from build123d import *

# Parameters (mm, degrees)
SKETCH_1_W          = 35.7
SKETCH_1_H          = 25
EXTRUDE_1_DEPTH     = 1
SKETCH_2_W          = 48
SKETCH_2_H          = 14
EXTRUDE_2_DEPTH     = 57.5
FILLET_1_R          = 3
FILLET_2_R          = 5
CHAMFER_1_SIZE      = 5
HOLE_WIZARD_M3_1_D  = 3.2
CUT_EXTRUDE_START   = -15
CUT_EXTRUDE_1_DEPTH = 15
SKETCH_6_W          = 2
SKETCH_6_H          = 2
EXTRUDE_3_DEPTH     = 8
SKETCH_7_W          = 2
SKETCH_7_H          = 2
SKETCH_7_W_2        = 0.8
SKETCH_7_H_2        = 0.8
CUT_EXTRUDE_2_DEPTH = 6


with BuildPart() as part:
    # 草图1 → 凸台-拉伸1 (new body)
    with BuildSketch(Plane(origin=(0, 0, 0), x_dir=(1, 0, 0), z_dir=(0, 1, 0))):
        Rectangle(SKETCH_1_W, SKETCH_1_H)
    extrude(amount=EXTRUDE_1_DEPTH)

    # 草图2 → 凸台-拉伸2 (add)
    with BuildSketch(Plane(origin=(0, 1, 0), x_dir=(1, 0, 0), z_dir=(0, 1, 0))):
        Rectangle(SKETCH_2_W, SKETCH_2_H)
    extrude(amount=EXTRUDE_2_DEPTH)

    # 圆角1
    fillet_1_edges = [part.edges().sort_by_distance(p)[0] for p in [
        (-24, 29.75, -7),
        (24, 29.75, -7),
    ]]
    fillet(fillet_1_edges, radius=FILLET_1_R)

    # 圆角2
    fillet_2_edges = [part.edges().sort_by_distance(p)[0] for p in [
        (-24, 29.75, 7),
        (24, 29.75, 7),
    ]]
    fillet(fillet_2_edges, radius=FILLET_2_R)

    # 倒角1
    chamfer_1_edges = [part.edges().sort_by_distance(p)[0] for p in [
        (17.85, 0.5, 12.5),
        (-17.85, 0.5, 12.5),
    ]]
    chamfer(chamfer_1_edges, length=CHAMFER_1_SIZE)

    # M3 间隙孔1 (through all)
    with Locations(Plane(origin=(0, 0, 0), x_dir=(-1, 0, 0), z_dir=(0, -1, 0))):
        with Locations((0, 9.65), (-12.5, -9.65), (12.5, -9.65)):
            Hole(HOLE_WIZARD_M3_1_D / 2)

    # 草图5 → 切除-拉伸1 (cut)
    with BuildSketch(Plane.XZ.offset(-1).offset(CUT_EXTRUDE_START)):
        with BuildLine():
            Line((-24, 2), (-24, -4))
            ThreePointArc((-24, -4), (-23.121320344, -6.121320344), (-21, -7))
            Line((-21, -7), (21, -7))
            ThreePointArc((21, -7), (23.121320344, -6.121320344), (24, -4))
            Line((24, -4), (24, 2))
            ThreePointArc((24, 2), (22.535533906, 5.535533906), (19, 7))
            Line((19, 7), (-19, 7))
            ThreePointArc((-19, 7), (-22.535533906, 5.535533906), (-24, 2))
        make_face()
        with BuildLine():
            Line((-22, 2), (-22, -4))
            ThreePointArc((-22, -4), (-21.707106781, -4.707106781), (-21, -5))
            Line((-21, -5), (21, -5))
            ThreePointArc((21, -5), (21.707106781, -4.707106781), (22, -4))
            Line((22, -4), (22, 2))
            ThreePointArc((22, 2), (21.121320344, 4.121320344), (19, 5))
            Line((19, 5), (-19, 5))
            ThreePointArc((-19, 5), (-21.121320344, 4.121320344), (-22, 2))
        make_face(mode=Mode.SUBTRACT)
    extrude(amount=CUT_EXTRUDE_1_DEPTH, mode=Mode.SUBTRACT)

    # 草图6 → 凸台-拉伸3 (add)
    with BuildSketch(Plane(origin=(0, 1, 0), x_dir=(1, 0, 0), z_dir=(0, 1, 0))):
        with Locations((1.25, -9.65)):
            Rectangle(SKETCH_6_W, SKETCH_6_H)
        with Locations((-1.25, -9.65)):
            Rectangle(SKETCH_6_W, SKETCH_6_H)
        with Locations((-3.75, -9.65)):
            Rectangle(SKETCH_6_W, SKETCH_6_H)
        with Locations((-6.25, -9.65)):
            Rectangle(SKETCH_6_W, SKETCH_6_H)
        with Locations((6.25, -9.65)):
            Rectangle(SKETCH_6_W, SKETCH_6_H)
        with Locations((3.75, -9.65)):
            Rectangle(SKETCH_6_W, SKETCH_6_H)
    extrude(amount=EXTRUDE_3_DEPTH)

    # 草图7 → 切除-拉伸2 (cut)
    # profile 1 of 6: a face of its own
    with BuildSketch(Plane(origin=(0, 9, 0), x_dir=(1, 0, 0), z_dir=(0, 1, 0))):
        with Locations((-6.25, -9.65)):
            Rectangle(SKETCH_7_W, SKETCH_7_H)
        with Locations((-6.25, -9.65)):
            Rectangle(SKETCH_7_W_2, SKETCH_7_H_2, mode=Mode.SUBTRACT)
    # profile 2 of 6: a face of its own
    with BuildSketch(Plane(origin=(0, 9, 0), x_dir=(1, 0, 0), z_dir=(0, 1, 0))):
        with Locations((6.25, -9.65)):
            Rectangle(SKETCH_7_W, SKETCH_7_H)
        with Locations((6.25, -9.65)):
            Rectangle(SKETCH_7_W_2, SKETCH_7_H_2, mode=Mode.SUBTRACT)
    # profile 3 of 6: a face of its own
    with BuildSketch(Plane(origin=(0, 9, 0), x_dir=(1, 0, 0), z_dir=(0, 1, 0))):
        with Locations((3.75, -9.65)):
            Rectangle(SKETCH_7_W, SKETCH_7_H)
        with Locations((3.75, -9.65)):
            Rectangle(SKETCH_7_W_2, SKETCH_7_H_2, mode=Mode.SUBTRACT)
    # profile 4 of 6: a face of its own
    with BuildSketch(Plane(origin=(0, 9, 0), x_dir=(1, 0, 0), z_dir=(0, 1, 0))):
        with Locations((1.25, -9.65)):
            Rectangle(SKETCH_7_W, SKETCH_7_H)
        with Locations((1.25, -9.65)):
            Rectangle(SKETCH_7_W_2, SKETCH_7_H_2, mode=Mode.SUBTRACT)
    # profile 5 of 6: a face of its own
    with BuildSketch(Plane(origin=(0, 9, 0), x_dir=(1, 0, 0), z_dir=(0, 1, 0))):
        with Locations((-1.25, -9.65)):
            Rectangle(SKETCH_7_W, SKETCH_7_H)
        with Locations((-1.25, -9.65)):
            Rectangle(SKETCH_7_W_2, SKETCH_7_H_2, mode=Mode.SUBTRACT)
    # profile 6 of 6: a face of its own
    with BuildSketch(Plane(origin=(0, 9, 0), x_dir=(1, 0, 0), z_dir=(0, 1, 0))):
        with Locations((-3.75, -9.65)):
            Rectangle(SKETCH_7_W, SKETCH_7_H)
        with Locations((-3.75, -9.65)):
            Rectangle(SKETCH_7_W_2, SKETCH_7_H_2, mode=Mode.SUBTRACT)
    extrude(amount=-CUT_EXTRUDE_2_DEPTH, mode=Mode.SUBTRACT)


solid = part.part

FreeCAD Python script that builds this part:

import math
import FreeCAD as App
import Part
import Sketcher


def edges_at(feature, points):
    """Names of the edges that pass closest to the given points."""
    edges = feature.Shape.Edges
    near = lambda p: min(range(len(edges)), key=lambda i: edges[i].distToShape(Part.Vertex(*p))[0])
    return sorted({f"Edge{near(p) + 1}" for p in points})


def add_polygon(sketch, points):
    """Adds a closed chain of lines whose ends are joined by coincident constraints."""
    first, n = sketch.GeometryCount, len(points)
    for a, b in zip(points, points[1:] + points[:1]):
        sketch.addGeometry(Part.LineSegment(App.Vector(*a, 0), App.Vector(*b, 0)), False)
    for i in range(n):
        sketch.addConstraint(Sketcher.Constraint("Coincident", first + i, 2, first + (i + 1) % n, 1))

doc = App.newDocument("Part")
body = doc.addObject("PartDesign::Body", "Body")

sketch1 = doc.addObject("Sketcher::SketchObject", "Sketch")
body.addObject(sketch1)
sketch1.AttachmentSupport = (doc.XZ_Plane, [""])
sketch1.MapMode = "FlatFace"
add_polygon(sketch1, [(-18, -12), (-18, 12), (18, 12), (18, -12)])
sketch1.addConstraint([
    Sketcher.Constraint("Vertical", 0),
    Sketcher.Constraint("Horizontal", 1),
    Sketcher.Constraint("Vertical", 2),
    Sketcher.Constraint("Horizontal", 3),
    Sketcher.Constraint("Symmetric", 0, 2, 2, 2, -1, 1),
    Sketcher.Constraint("DistanceY", 0, 1, 0, 2, 25.0),
    Sketcher.Constraint("DistanceX", 1, 1, 1, 2, 35.7),
])
pad1 = doc.addObject("PartDesign::Pad", "Pad")
body.addObject(pad1)
pad1.Profile = sketch1
pad1.Length = 1
pad1.Reversed = True

sketch2 = doc.addObject("Sketcher::SketchObject", "Sketch001")
body.addObject(sketch2)
sketch2.AttachmentSupport = (doc.XZ_Plane, [""])
sketch2.MapMode = "FlatFace"
sketch2.AttachmentOffset = App.Placement(App.Vector(0, 0, -1), App.Rotation())
add_polygon(sketch2, [(-24, -7), (-24, 7), (24, 7), (24, -7)])
sketch2.addConstraint([
    Sketcher.Constraint("Vertical", 0),
    Sketcher.Constraint("Horizontal", 1),
    Sketcher.Constraint("Vertical", 2),
    Sketcher.Constraint("Horizontal", 3),
    Sketcher.Constraint("Symmetric", 0, 2, 2, 2, -1, 1),
    Sketcher.Constraint("DistanceX", 1, 1, 1, 2, 48.0),
    Sketcher.Constraint("DistanceY", 0, 1, 0, 2, 14.0),
])
pad2 = doc.addObject("PartDesign::Pad", "Pad001")
body.addObject(pad2)
pad2.Profile = sketch2
pad2.Length = 57.5
pad2.Reversed = True
doc.recompute()

fillet = doc.addObject("PartDesign::Fillet", "Fillet")
body.addObject(fillet)
fillet.Base = (pad2, edges_at(pad2, [(-24, 29.75, -7), (24, 29.75, -7)]))
fillet.Radius = 3
doc.recompute()

fillet2 = doc.addObject("PartDesign::Fillet", "Fillet001")
body.addObject(fillet2)
fillet2.Base = (fillet, edges_at(fillet, [(-24, 29.75, 7), (24, 29.75, 7)]))
fillet2.Radius = 5
doc.recompute()

chamfer = doc.addObject("PartDesign::Chamfer", "Chamfer")
body.addObject(chamfer)
chamfer.Base = (fillet2, edges_at(fillet2, [(17.85, 0.5, 12.5), (-17.85, 0.5, 12.5)]))
chamfer.Size = 5

sketch3 = doc.addObject("Sketcher::SketchObject", "Sketch002")
body.addObject(sketch3)
sketch3.AttachmentSupport = (doc.XZ_Plane, [""])
sketch3.MapMode = "FlatFace"
sketch3.addGeometry([
    Part.Circle(App.Vector(0, -9.7, 0), App.Vector(0, 0, 1), 1.6),
    Part.Circle(App.Vector(12.5, 9.7, 0), App.Vector(0, 0, 1), 1.6),
    Part.Circle(App.Vector(-12.5, 9.7, 0), App.Vector(0, 0, 1), 1.6),
], False)
sketch3.addConstraint([
    Sketcher.Constraint("Equal", 0, 1),
    Sketcher.Constraint("Equal", 1, 2),
    Sketcher.Constraint("Symmetric", 1, 3, 2, 3, -2),
    Sketcher.Constraint("PointOnObject", 0, 3, -2),
    Sketcher.Constraint("Diameter", 0, 3.2),
    Sketcher.Constraint("DistanceX", 2, 3, 1, 3, 25.0),
    Sketcher.Constraint("DistanceY", 0, 3, 1, 3, 19.3),
    Sketcher.Constraint("DistanceY", 0, 3, -1, 1, 9.65),
])
doc.recompute()
hole = doc.addObject("PartDesign::Hole", "Hole")
body.addObject(hole)
hole.Profile = sketch3
hole.ThreadType = "None"
hole.Diameter = 3.2
hole.DepthType = "ThroughAll"

sketch4 = doc.addObject("Sketcher::SketchObject", "Sketch003")
body.addObject(sketch4)
sketch4.AttachmentSupport = (doc.XZ_Plane, [""])
sketch4.MapMode = "FlatFace"
sketch4.AttachmentOffset = App.Placement(App.Vector(0, 0, -16), App.Rotation())
sketch4.addGeometry([
    Part.LineSegment(App.Vector(-24, 2, 0), App.Vector(-24, -4, 0)),
    Part.ArcOfCircle(Part.Circle(App.Vector(-21, -4, 0), App.Vector(0, 0, 1), 3), math.radians(180), math.radians(270)),
    Part.LineSegment(App.Vector(-21, -7, 0), App.Vector(21, -7, 0)),
    Part.ArcOfCircle(Part.Circle(App.Vector(21, -4, 0), App.Vector(0, 0, 1), 3), math.radians(-90), math.radians(0)),
    Part.LineSegment(App.Vector(24, -4, 0), App.Vector(24, 2, 0)),
    Part.ArcOfCircle(Part.Circle(App.Vector(19, 2, 0), App.Vector(0, 0, 1), 5), math.radians(0), math.radians(90)),
    Part.LineSegment(App.Vector(19, 7, 0), App.Vector(-19, 7, 0)),
    Part.ArcOfCircle(Part.Circle(App.Vector(-19, 2, 0), App.Vector(0, 0, 1), 5), math.radians(90), math.radians(180)),
    Part.LineSegment(App.Vector(-22, -4, 0), App.Vector(-22, 2, 0)),
    Part.ArcOfCircle(Part.Circle(App.Vector(-19, 2, 0), App.Vector(0, 0, 1), 3), math.radians(90), math.radians(180)),
    Part.LineSegment(App.Vector(-19, 5, 0), App.Vector(19, 5, 0)),
    Part.ArcOfCircle(Part.Circle(App.Vector(19, 2, 0), App.Vector(0, 0, 1), 3), math.radians(0), math.radians(90)),
    Part.LineSegment(App.Vector(22, 2, 0), App.Vector(22, -4, 0)),
    Part.ArcOfCircle(Part.Circle(App.Vector(21, -4, 0), App.Vector(0, 0, 1), 1), math.radians(-90), math.radians(0)),
    Part.LineSegment(App.Vector(21, -5, 0), App.Vector(-21, -5, 0)),
    Part.ArcOfCircle(Part.Circle(App.Vector(-21, -4, 0), App.Vector(0, 0, 1), 1), math.radians(-180), math.radians(-90)),
], False)
sketch4.addConstraint([
    Sketcher.Constraint("Tangent", 0, 2, 1, 1),
    Sketcher.Constraint("Tangent", 1, 2, 2, 1),
    Sketcher.Constraint("Tangent", 2, 2, 3, 1),
    Sketcher.Constraint("Tangent", 3, 2, 4, 1),
    Sketcher.Constraint("Tangent", 4, 2, 5, 1),
    Sketcher.Constraint("Tangent", 5, 2, 6, 1),
    Sketcher.Constraint("Tangent", 6, 2, 7, 1),
    Sketcher.Constraint("Tangent", 7, 2, 0, 1),
    Sketcher.Constraint("Tangent", 8, 2, 9, 2),
    Sketcher.Constraint("Tangent", 9, 1, 10, 1),
    Sketcher.Constraint("Tangent", 10, 2, 11, 2),
    Sketcher.Constraint("Tangent", 11, 1, 12, 1),
    Sketcher.Constraint("Tangent", 12, 2, 13, 2),
    Sketcher.Constraint("Tangent", 13, 1, 14, 1),
    Sketcher.Constraint("Tangent", 14, 2, 15, 2),
    Sketcher.Constraint("Tangent", 15, 1, 8, 1),
    Sketcher.Constraint("Vertical", 0),
    Sketcher.Constraint("Horizontal", 2),
    Sketcher.Constraint("Vertical", 4),
    Sketcher.Constraint("Horizontal", 6),
    Sketcher.Constraint("Vertical", 8),
    Sketcher.Constraint("Horizontal", 10),
    Sketcher.Constraint("Vertical", 12),
    Sketcher.Constraint("Horizontal", 14),
    Sketcher.Constraint("Coincident", 9, 3, 7, 3),
    Sketcher.Constraint("Coincident", 11, 3, 5, 3),
    Sketcher.Constraint("Coincident", 13, 3, 3, 3),
    Sketcher.Constraint("Equal", 1, 3),
    Sketcher.Constraint("Equal", 5, 7),
    Sketcher.Constraint("Equal", 3, 9),
    Sketcher.Constraint("Equal", 13, 15),
    Sketcher.Constraint("Radius", 1, 3.0),
    Sketcher.Constraint("Radius", 5, 5.0),
    Sketcher.Constraint("DistanceX", 2, 1, 2, 2, 42.0),
    Sketcher.Constraint("DistanceY", 0, 2, 0, 1, 6.0),
    Sketcher.Constraint("DistanceX", 1, 3, -1, 1, 21.0),
    Sketcher.Constraint("DistanceY", 1, 3, -1, 1, 4.0),
])
pocket1 = doc.addObject("PartDesign::Pocket", "Pocket")
body.addObject(pocket1)
pocket1.Profile = sketch4
pocket1.Length = 15
pocket1.Reversed = True

sketch5 = doc.addObject("Sketcher::SketchObject", "Sketch004")
body.addObject(sketch5)
sketch5.AttachmentSupport = (doc.XZ_Plane, [""])
sketch5.MapMode = "FlatFace"
sketch5.AttachmentOffset = App.Placement(App.Vector(0, 0, -1), App.Rotation())
add_polygon(sketch5, [(0.2, 8.7), (0.2, 10.7), (2.2, 10.7), (2.2, 8.7)])
add_polygon(sketch5, [(-2.2, 8.7), (-2.2, 10.7), (-0.2, 10.7), (-0.2, 8.7)])
add_polygon(sketch5, [(-4.8, 8.7), (-4.8, 10.7), (-2.8, 10.7), (-2.8, 8.7)])
add_polygon(sketch5, [(-7.2, 8.7), (-7.2, 10.7), (-5.2, 10.7), (-5.2, 8.7)])
add_polygon(sketch5, [(5.2, 8.7), (5.2, 10.7), (7.2, 10.7), (7.2, 8.7)])
add_polygon(sketch5, [(2.8, 8.7), (2.8, 10.7), (4.8, 10.7), (4.8, 8.7)])
sketch5.addConstraint([
    Sketcher.Constraint("Vertical", 0),
    Sketcher.Constraint("Horizontal", 1),
    Sketcher.Constraint("Vertical", 2),
    Sketcher.Constraint("Horizontal", 3),
    Sketcher.Constraint("Vertical", 4),
    Sketcher.Constraint("Horizontal", 5),
    Sketcher.Constraint("Vertical", 6),
    Sketcher.Constraint("Horizontal", 7),
    Sketcher.Constraint("Vertical", 8),
    Sketcher.Constraint("Horizontal", 9),
    Sketcher.Constraint("Vertical", 10),
    Sketcher.Constraint("Horizontal", 11),
    Sketcher.Constraint("Vertical", 12),
    Sketcher.Constraint("Horizontal", 13),
    Sketcher.Constraint("Vertical", 14),
    Sketcher.Constraint("Horizontal", 15),
    Sketcher.Constraint("Vertical", 16),
    Sketcher.Constraint("Horizontal", 17),
    Sketcher.Constraint("Vertical", 18),
    Sketcher.Constraint("Horizontal", 19),
    Sketcher.Constraint("Vertical", 20),
    Sketcher.Constraint("Horizontal", 21),
    Sketcher.Constraint("Vertical", 22),
    Sketcher.Constraint("Horizontal", 23),
    Sketcher.Constraint("Symmetric", 1, 2, 4, 2, -2),
    Sketcher.Constraint("Symmetric", 3, 2, 6, 2, -2),
    Sketcher.Constraint("Symmetric", 13, 2, 16, 2, -2),
    Sketcher.Constraint("Symmetric", 15, 2, 18, 2, -2),
    Sketcher.Constraint("Symmetric", 9, 2, 20, 2, -2),
    Sketcher.Constraint("Symmetric", 11, 2, 22, 2, -2),
    Sketcher.Constraint("Horizontal", 5, 2, 8, 2),
    Sketcher.Constraint("Horizontal", 7, 2, 10, 2),
    Sketcher.Constraint("Horizontal", 9, 2, 12, 2),
    Sketcher.Constraint("Horizontal", 11, 2, 14, 2),
    Sketcher.Constraint("Equal", 7, 9),
    Sketcher.Constraint("Equal", 11, 13),
    Sketcher.Constraint("Equal", 23, 0),
    Sketcher.Constraint("DistanceX", 1, 1, 1, 2, 2.0),
    Sketcher.Constraint("DistanceX", 8, 2, 0, 2, 5.0),
    Sketcher.Constraint("DistanceX", 12, 2, 4, 2, 5.0),
    Sketcher.Constraint("DistanceX", 4, 2, 0, 2, 2.5),
    Sketcher.Constraint("DistanceY", -1, 1, 0, 2, 10.65),
])
pad3 = doc.addObject("PartDesign::Pad", "Pad002")
body.addObject(pad3)
pad3.Profile = sketch5
pad3.Length = 8
pad3.Reversed = True

sketch6 = doc.addObject("Sketcher::SketchObject", "Sketch005")
body.addObject(sketch6)
sketch6.AttachmentSupport = (doc.XZ_Plane, [""])
sketch6.MapMode = "FlatFace"
sketch6.AttachmentOffset = App.Placement(App.Vector(0, 0, -9), App.Rotation())
add_polygon(sketch6, [(-7.2, 8.7), (-7.2, 10.7), (-5.2, 10.7), (-5.2, 8.7)])
add_polygon(sketch6, [(-5.8, 10.1), (-6.7, 10.1), (-6.7, 9.2), (-5.8, 9.2)])
add_polygon(sketch6, [(5.2, 8.7), (5.2, 10.7), (7.2, 10.7), (7.2, 8.7)])
add_polygon(sketch6, [(6.7, 10.1), (5.8, 10.1), (5.8, 9.2), (6.7, 9.2)])
add_polygon(sketch6, [(2.8, 8.7), (2.8, 10.7), (4.8, 10.7), (4.8, 8.7)])
add_polygon(sketch6, [(4.2, 10.1), (3.4, 10.1), (3.4, 9.2), (4.2, 9.2)])
add_polygon(sketch6, [(0.2, 8.7), (0.2, 10.7), (2.2, 10.7), (2.2, 8.7)])
add_polygon(sketch6, [(1.6, 10.1), (0.8, 10.1), (0.8, 9.2), (1.6, 9.2)])
add_polygon(sketch6, [(-2.2, 8.7), (-2.2, 10.7), (-0.2, 10.7), (-0.2, 8.7)])
add_polygon(sketch6, [(-0.8, 10.1), (-1.6, 10.1), (-1.6, 9.2), (-0.8, 9.2)])
add_polygon(sketch6, [(-4.8, 8.7), (-4.8, 10.7), (-2.8, 10.7), (-2.8, 8.7)])
add_polygon(sketch6, [(-3.4, 10.1), (-4.2, 10.1), (-4.2, 9.2), (-3.4, 9.2)])
sketch6.addConstraint([
    Sketcher.Constraint("Vertical", 0),
    Sketcher.Constraint("Horizontal", 1),
    Sketcher.Constraint("Vertical", 2),
    Sketcher.Constraint("Horizontal", 3),
    Sketcher.Constraint("Horizontal", 4),
    Sketcher.Constraint("Vertical", 5),
    Sketcher.Constraint("Horizontal", 6),
    Sketcher.Constraint("Vertical", 7),
    Sketcher.Constraint("Vertical", 8),
    Sketcher.Constraint("Horizontal", 9),
    Sketcher.Constraint("Vertical", 10),
    Sketcher.Constraint("Horizontal", 11),
    Sketcher.Constraint("Horizontal", 12),
    Sketcher.Constraint("Vertical", 13),
    Sketcher.Constraint("Horizontal", 14),
    Sketcher.Constraint("Vertical", 15),
    Sketcher.Constraint("Vertical", 16),
    Sketcher.Constraint("Horizontal", 17),
    Sketcher.Constraint("Vertical", 18),
    Sketcher.Constraint("Horizontal", 19),
    Sketcher.Constraint("Horizontal", 20),
    Sketcher.Constraint("Vertical", 21),
    Sketcher.Constraint("Horizontal", 22),
    Sketcher.Constraint("Vertical", 23),
    Sketcher.Constraint("Vertical", 24),
    Sketcher.Constraint("Horizontal", 25),
    Sketcher.Constraint("Vertical", 26),
    Sketcher.Constraint("Horizontal", 27),
    Sketcher.Constraint("Horizontal", 28),
    Sketcher.Constraint("Vertical", 29),
    Sketcher.Constraint("Horizontal", 30),
    Sketcher.Constraint("Vertical", 31),
    Sketcher.Constraint("Vertical", 32),
    Sketcher.Constraint("Horizontal", 33),
    Sketcher.Constraint("Vertical", 34),
    Sketcher.Constraint("Horizontal", 35),
    Sketcher.Constraint("Horizontal", 36),
    Sketcher.Constraint("Vertical", 37),
    Sketcher.Constraint("Horizontal", 38),
    Sketcher.Constraint("Vertical", 39),
    Sketcher.Constraint("Vertical", 40),
    Sketcher.Constraint("Horizontal", 41),
    Sketcher.Constraint("Vertical", 42),
    Sketcher.Constraint("Horizontal", 43),
    Sketcher.Constraint("Horizontal", 44),
    Sketcher.Constraint("Vertical", 45),
    Sketcher.Constraint("Horizontal", 46),
    Sketcher.Constraint("Vertical", 47),
    Sketcher.Constraint("Symmetric", 1, 2, 8, 2, -2),
    Sketcher.Constraint("Symmetric", 3, 2, 10, 2, -2),
    Sketcher.Constraint("Symmetric", 7, 2, 12, 2, -2),
    Sketcher.Constraint("Symmetric", 5, 2, 14, 2, -2),
    Sketcher.Constraint("Symmetric", 25, 2, 32, 2, -2),
    Sketcher.Constraint("Symmetric", 27, 2, 34, 2, -2),
    Sketcher.Constraint("Symmetric", 31, 2, 36, 2, -2),
    Sketcher.Constraint("Symmetric", 29, 2, 38, 2, -2),
    Sketcher.Constraint("Symmetric", 17, 2, 40, 2, -2),
    Sketcher.Constraint("Symmetric", 19, 2, 42, 2, -2),
    Sketcher.Constraint("Symmetric", 23, 2, 44, 2, -2),
    Sketcher.Constraint("Symmetric", 21, 2, 46, 2, -2),
    Sketcher.Constraint("Horizontal", 9, 2, 16, 2),
    Sketcher.Constraint("Horizontal", 11, 2, 18, 2),
    Sketcher.Constraint("Horizontal", 15, 2, 20, 2),
    Sketcher.Constraint("Horizontal", 14, 2, 21, 2),
    Sketcher.Constraint("Horizontal", 17, 2, 24, 2),
    Sketcher.Constraint("Horizontal", 19, 2, 26, 2),
    Sketcher.Constraint("Horizontal", 23, 2, 28, 2),
    Sketcher.Constraint("Horizontal", 22, 2, 29, 2),
    Sketcher.Constraint("Equal", 11, 17),
    Sketcher.Constraint("Equal", 14, 20),
    Sketcher.Constraint("Equal", 19, 25),
    Sketcher.Constraint("Equal", 22, 28),
    Sketcher.Constraint("Equal", 43, 0),
    Sketcher.Constraint("Equal", 46, 5),
    Sketcher.Constraint("DistanceX", 1, 1, 1, 2, 2.0),
    Sketcher.Constraint("DistanceX", 4, 2, 4, 1, 0.8),
    Sketcher.Constraint("DistanceX", 1, 2, 32, 2, 3.0),
    Sketcher.Constraint("DistanceX", 0, 2, 4, 2, 0.6),
    Sketcher.Constraint("DistanceY", 4, 2, 0, 2, 0.6),
    Sketcher.Constraint("DistanceX", 1, 2, 8, 2, 10.5),
    Sketcher.Constraint("DistanceX", 16, 2, 8, 2, 2.5),
    Sketcher.Constraint("DistanceX", 16, 2, 20, 2, 0.6),
    Sketcher.Constraint("DistanceX", 24, 2, 28, 2, 0.6),
    Sketcher.Constraint("DistanceY", -1, 1, 0, 2, 10.65),
])
pocket2 = doc.addObject("PartDesign::Pocket", "Pocket001")
body.addObject(pocket2)
pocket2.Profile = sketch6
pocket2.Length = 6
pocket2.Reversed = True

doc.recompute()
